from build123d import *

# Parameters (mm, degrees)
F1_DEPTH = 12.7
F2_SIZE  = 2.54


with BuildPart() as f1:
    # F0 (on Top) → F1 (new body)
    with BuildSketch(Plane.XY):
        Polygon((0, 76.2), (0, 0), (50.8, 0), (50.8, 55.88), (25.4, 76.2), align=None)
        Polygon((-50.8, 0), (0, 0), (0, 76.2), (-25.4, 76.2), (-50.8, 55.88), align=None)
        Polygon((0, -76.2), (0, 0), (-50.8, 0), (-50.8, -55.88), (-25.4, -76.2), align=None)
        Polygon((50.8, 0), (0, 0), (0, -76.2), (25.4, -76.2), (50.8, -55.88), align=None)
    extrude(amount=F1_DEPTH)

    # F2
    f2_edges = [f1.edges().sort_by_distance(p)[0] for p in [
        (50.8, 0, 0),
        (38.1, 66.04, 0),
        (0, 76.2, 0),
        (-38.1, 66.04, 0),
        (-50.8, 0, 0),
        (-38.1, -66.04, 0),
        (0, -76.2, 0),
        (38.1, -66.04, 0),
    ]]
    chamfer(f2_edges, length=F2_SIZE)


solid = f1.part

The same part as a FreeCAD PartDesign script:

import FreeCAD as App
import Part
import Sketcher

V = App.Vector
Q = App.Units.Quantity


def edges_at(feature, points):
    """Names of the edges that pass closest to the given points."""
    edges = feature.Shape.Edges
    near = lambda p: min(range(len(edges)), key=lambda i: edges[i].distToShape(Part.Vertex(*p))[0])
    return sorted({f"Edge{near(p) + 1}" for p in points})

doc = App.newDocument("Part")
body = doc.addObject("PartDesign::Body", "Body")

# Sketch on XY plane
sketch1 = body.newObject("Sketcher::SketchObject", "Sketch")
sketch1.AttachmentSupport = (doc.getObject("XY_Plane"), [""])
sketch1.MapMode = "FlatFace"
sketch1.addGeometry([
    Part.LineSegment(V(51, 56, 0), V(25, 76, 0)),  # 0
    Part.LineSegment(V(25, 76, 0), V(-25, 76, 0)),  # 1
    Part.LineSegment(V(-25, 76, 0), V(-51, 56, 0)),  # 2
    Part.LineSegment(V(-51, 56, 0), V(-51, -56, 0)),  # 3
    Part.LineSegment(V(-51, -56, 0), V(-25, -76, 0)),  # 4
    Part.LineSegment(V(-25, -76, 0), V(25, -76, 0)),  # 5
    Part.LineSegment(V(25, -76, 0), V(51, -56, 0)),  # 6
    Part.LineSegment(V(51, -56, 0), V(51, 56, 0)),  # 7
], False)
sketch1.addConstraint([
    Sketcher.Constraint("Coincident", 0, 2, 1, 1),
    Sketcher.Constraint("Coincident", 1, 2, 2, 1),
    Sketcher.Constraint("Coincident", 2, 2, 3, 1),
    Sketcher.Constraint("Coincident", 3, 2, 4, 1),
    Sketcher.Constraint("Coincident", 4, 2, 5, 1),
    Sketcher.Constraint("Coincident", 5, 2, 6, 1),
    Sketcher.Constraint("Coincident", 6, 2, 7, 1),
    Sketcher.Constraint("Coincident", 7, 2, 0, 1),
    Sketcher.Constraint("Horizontal", 1),
    Sketcher.Constraint("Vertical", 3),
    Sketcher.Constraint("Horizontal", 5),
    Sketcher.Constraint("Vertical", 7),
    Sketcher.Constraint("Symmetric", 0, 2, 4, 2, -1, 1),
    Sketcher.Constraint("Symmetric", 2, 2, 6, 2, -1, 1),
    Sketcher.Constraint("Parallel", 0, 4),
    Sketcher.Constraint("Parallel", 2, 6),
    Sketcher.Constraint("Horizontal", 3, 2, 6, 2),
    Sketcher.Constraint("Vertical", 1, 2, 4, 2),
    Sketcher.Constraint("DistanceX", 1, 2, 1, 1, Q("2 in")),
    Sketcher.Constraint("DistanceY", 3, 2, 3, 1, Q("4.4 in")),
    Sketcher.Constraint("DistanceY", -1, 1, 0, 2, Q("3 in")),
    Sketcher.Constraint("DistanceX", 2, 2, -1, 1, Q("2 in")),
])
pad1 = body.newObject("PartDesign::Pad", "Pad")
pad1.Profile = sketch1
pad1.Length = Q("0.5 in")
doc.recompute()

chamfer = body.newObject("PartDesign::Chamfer", "Chamfer")
chamfer.Base = (pad1, edges_at(pad1, [
    (50.8, 0, 0),
    (38.1, 66.04, 0),
    (0, 76.2, 0),
    (-38.1, 66.04, 0),
    (-50.8, 0, 0),
    (-38.1, -66.04, 0),
    (0, -76.2, 0),
    (38.1, -66.04, 0),
]))
chamfer.Size = Q("0.1 in")

doc.recompute()
